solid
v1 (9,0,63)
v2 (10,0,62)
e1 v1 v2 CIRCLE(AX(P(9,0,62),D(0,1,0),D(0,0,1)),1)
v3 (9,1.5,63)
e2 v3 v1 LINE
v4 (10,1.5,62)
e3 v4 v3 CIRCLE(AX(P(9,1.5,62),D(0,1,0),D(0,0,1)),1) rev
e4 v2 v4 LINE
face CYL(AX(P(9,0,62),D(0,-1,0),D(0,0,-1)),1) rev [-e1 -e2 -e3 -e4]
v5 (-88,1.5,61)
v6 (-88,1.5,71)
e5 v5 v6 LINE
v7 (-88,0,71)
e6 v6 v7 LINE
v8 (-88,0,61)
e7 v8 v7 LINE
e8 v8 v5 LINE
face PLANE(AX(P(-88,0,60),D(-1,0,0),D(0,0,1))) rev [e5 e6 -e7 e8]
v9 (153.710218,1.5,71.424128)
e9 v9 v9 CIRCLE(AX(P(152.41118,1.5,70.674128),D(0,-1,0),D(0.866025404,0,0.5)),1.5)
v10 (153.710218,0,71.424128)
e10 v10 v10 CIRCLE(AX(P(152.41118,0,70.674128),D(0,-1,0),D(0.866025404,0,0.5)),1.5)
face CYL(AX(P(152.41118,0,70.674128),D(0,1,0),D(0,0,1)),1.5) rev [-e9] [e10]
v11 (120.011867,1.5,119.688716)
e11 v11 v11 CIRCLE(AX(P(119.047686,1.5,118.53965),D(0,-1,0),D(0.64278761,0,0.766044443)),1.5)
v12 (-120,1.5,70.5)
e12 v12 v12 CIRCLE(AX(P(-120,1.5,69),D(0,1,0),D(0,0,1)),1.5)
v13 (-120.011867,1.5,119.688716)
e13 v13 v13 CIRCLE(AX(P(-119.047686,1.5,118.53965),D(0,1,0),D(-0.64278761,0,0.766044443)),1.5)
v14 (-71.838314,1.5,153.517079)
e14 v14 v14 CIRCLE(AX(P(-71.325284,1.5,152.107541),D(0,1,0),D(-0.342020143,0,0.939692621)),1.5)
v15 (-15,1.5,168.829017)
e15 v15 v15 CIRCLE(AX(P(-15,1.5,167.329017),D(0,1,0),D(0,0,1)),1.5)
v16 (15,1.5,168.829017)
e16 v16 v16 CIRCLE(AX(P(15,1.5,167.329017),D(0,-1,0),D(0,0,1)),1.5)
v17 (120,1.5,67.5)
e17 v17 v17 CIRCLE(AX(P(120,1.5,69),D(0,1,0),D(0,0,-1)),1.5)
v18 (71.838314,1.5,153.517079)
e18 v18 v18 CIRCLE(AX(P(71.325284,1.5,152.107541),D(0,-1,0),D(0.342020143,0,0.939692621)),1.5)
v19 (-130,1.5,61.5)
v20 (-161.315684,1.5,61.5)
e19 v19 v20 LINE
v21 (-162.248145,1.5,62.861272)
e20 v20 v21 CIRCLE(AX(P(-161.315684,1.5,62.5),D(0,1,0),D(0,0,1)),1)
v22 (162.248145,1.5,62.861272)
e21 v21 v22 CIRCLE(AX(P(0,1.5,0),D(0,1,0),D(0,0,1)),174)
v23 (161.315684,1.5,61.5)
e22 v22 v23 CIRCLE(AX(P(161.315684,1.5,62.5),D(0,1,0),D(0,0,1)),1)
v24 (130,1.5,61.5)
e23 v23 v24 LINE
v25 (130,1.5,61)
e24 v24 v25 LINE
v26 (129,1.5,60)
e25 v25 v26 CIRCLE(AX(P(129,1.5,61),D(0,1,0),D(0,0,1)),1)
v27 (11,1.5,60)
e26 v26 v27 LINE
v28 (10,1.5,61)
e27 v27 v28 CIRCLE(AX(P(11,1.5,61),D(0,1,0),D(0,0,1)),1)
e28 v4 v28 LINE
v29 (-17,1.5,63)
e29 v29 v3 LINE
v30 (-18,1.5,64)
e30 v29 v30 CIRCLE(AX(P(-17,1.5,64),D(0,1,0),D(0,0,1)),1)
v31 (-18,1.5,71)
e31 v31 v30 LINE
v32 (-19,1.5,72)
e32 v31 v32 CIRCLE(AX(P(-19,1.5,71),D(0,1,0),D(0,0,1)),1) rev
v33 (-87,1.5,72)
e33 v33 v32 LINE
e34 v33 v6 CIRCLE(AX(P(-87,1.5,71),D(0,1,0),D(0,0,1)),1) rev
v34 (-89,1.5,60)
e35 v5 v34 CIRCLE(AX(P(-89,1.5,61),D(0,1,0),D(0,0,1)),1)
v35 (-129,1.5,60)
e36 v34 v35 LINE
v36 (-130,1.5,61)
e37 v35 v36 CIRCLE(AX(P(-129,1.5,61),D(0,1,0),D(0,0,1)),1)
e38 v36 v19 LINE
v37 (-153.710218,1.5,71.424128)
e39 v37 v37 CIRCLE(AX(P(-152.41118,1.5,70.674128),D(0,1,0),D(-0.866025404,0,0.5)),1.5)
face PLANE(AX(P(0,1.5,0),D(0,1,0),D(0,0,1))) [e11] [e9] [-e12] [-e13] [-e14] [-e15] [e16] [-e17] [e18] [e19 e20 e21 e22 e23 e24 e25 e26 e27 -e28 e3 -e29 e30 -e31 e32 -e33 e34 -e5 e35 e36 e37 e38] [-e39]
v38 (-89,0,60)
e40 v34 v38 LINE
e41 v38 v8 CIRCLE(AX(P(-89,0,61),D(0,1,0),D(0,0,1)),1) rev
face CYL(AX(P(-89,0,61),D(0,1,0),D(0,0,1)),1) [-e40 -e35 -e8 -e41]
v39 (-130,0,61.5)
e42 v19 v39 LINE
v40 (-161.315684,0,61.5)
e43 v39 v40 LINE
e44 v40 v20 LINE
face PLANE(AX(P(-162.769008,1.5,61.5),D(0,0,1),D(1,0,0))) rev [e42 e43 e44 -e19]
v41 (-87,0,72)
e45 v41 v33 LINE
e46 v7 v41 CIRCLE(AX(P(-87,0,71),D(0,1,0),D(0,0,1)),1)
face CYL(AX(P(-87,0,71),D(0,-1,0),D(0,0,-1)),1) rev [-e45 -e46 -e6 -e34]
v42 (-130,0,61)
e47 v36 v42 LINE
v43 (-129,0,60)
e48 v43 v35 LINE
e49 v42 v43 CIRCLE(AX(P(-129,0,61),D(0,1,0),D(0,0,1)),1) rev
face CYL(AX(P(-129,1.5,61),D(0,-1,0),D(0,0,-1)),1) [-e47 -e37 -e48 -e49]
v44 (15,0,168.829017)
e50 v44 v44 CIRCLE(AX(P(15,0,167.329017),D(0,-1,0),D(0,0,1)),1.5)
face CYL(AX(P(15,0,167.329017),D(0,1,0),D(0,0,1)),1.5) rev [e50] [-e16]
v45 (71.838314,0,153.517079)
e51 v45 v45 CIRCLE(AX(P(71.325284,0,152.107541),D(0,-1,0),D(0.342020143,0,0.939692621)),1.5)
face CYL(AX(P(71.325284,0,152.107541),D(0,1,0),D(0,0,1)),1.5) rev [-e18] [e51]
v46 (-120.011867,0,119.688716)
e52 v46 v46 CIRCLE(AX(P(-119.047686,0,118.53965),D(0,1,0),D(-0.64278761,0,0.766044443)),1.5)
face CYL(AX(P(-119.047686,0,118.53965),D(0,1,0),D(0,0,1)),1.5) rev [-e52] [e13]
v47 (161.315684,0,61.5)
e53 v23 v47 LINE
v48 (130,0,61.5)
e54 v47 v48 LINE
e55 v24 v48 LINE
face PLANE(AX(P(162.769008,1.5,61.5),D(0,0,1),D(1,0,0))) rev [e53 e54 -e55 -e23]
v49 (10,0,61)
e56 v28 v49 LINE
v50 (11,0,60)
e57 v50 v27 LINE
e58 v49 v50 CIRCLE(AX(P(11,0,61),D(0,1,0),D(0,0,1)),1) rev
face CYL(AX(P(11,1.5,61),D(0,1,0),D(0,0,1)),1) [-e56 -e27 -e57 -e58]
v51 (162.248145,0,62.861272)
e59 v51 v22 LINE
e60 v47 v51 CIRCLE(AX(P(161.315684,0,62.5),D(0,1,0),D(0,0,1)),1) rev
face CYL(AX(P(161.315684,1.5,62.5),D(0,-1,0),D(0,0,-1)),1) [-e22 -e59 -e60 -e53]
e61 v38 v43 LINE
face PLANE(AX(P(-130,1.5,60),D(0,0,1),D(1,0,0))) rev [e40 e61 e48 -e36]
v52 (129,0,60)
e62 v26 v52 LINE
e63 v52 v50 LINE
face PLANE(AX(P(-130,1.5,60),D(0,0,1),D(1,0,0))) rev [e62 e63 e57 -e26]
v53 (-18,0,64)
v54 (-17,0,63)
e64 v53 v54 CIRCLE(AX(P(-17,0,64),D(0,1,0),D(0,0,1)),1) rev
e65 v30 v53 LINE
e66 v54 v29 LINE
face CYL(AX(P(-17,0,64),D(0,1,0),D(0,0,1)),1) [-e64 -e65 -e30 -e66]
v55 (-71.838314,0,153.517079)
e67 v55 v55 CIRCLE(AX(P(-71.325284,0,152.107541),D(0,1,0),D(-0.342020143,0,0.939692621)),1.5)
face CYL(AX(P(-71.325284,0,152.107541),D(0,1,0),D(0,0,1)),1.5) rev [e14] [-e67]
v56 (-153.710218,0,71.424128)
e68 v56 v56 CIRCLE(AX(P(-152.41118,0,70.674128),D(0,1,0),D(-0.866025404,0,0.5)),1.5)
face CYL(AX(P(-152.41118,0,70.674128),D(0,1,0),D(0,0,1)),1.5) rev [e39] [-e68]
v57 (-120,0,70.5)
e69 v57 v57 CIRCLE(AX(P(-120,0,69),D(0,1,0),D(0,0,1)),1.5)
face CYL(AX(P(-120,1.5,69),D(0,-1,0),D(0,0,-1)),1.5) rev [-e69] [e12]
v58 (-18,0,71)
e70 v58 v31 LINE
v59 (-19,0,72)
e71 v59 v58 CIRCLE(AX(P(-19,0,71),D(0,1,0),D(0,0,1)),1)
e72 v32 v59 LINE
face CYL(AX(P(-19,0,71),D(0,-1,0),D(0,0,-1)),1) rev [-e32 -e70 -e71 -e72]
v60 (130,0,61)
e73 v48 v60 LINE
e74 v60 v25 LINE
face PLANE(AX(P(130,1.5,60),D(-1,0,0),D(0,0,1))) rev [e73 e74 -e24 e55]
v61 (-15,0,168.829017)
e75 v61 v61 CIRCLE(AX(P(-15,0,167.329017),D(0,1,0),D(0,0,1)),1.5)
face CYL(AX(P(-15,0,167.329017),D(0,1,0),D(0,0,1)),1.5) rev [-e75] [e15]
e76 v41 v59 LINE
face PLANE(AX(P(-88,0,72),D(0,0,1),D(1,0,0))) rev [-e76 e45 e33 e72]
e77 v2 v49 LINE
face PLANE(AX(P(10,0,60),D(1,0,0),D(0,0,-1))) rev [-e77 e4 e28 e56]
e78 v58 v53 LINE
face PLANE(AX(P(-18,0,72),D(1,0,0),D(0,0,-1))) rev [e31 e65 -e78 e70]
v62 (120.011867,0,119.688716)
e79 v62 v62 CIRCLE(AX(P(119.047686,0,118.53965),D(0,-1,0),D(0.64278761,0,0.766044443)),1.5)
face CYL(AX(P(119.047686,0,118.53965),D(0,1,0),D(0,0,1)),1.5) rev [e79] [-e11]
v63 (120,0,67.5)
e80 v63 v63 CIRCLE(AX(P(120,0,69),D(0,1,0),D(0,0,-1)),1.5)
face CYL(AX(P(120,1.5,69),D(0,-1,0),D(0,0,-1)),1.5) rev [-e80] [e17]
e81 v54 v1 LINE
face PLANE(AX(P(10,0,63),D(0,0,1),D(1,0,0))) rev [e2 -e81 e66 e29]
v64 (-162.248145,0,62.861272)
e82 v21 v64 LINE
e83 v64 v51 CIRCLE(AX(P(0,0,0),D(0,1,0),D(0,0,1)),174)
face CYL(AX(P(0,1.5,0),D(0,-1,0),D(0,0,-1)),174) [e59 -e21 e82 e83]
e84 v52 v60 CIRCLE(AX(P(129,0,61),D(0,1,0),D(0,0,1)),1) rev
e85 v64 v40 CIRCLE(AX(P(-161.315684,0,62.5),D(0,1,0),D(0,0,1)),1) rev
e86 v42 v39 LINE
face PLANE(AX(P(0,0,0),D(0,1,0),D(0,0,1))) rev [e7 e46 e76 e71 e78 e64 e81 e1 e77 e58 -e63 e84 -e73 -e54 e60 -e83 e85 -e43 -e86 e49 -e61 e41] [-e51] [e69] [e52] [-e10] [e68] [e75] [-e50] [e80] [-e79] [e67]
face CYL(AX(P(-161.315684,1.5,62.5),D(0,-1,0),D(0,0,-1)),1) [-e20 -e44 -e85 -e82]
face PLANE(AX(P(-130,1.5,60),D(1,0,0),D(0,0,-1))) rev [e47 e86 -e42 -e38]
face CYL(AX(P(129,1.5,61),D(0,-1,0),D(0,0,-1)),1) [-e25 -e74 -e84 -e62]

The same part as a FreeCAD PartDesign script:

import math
import FreeCAD as App
import Part
import Sketcher

V = App.Vector
Q = App.Units.Quantity


def edges_at(feature, points):
    """Names of the edges that pass closest to the given points."""
    edges = feature.Shape.Edges
    near = lambda p: min(range(len(edges)), key=lambda i: edges[i].distToShape(Part.Vertex(*p))[0])
    return sorted({f"Edge{near(p) + 1}" for p in points})


def add_polygon(sketch, points):
    """Adds a closed chain of lines whose ends are joined by coincident constraints."""
    first, n = sketch.GeometryCount, len(points)
    for a, b in zip(points, points[1:] + points[:1]):
        sketch.addGeometry(Part.LineSegment(App.Vector(*a, 0), App.Vector(*b, 0)), False)
    for i in range(n):
        sketch.addConstraint(Sketcher.Constraint("Coincident", first + i, 2, first + (i + 1) % n, 1))

doc = App.newDocument("Part")
body = doc.addObject("PartDesign::Body", "Body")

sketch1 = body.newObject("Sketcher::SketchObject", "Sketch")
sketch1.AttachmentSupport = (doc.getObject("XZ_Plane"), [""])
sketch1.MapMode = "FlatFace"
sketch1.addGeometry([
    Part.LineSegment(V(130, 60, 0), V(-130, 60, 0)),
    Part.LineSegment(V(-130, 60, 0), V(-130, 61.5, 0)),
    Part.LineSegment(V(-130, 61.5, 0), V(-162.8, 61.5, 0)),
    Part.ArcOfCircle(Part.Circle(V(0, 0, 0), V(0, 0, 1), 174), math.radians(90), math.radians(159)),
    Part.ArcOfCircle(Part.Circle(V(0, 0, 0), V(0, 0, 1), 174), math.radians(21), math.radians(90)),
    Part.LineSegment(V(162.8, 61.5, 0), V(130, 61.5, 0)),
    Part.LineSegment(V(130, 61.5, 0), V(130, 60, 0)),
    Part.Circle(V(120, 69, 0), V(0, 0, 1), 1.5),
    Part.Circle(V(-120, 69, 0), V(0, 0, 1), 1.5),
], False)
sketch1.addConstraint([
    Sketcher.Constraint("Coincident", 0, 2, 1, 1),
    Sketcher.Constraint("Coincident", 1, 2, 2, 1),
    Sketcher.Constraint("Coincident", 2, 2, 3, 2),
    Sketcher.Constraint("Tangent", 3, 1, 4, 2),
    Sketcher.Constraint("Coincident", 4, 1, 5, 1),
    Sketcher.Constraint("Coincident", 5, 2, 6, 1),
    Sketcher.Constraint("Coincident", 6, 2, 0, 1),
    Sketcher.Constraint("Horizontal", 0),
    Sketcher.Constraint("Vertical", 1),
    Sketcher.Constraint("Horizontal", 2),
    Sketcher.Constraint("Horizontal", 5),
    Sketcher.Constraint("Vertical", 6),
    Sketcher.Constraint("Coincident", 3, 3, -1, 1),
    Sketcher.Constraint("Equal", 3, 4),
    Sketcher.Constraint("Equal", 7, 8),
    Sketcher.Constraint("Symmetric", 7, 3, 8, 3, -2),
    Sketcher.Constraint("Symmetric", 1, 2, 5, 2, -2),
    Sketcher.Constraint("PointOnObject", 3, 1, -2),
    Sketcher.Constraint("Diameter", 7, Q("3 mm")),
    Sketcher.Constraint("Radius", 3, Q("174 mm")),
    Sketcher.Constraint("DistanceX", 0, 2, 0, 1, Q("260 mm")),
    Sketcher.Constraint("DistanceY", 1, 1, 1, 2, Q("1.5 mm")),
    Sketcher.Constraint("DistanceX", -1, 1, 7, 3, Q("120 mm")),
    Sketcher.Constraint("DistanceY", -1, 1, 7, 3, Q("69 mm")),
    Sketcher.Constraint("DistanceY", -1, 1, 0, 2, Q("60 mm")),
])
pad1 = body.newObject("PartDesign::Pad", "Pad")
pad1.Profile = sketch1
pad1.Length = 1.5
pad1.Reversed = True
doc.recompute()

fillet = body.newObject("PartDesign::Fillet", "Fillet")
fillet.Base = (pad1, edges_at(pad1, [
    (-130, 0.75, 60),
    (130, 0.75, 60),
    (162.769, 0.75, 61.5),
    (-162.769, 0.75, 61.5),
]))
fillet.Radius = 1

sketch2 = body.newObject("Sketcher::SketchObject", "Sketch001")
sketch2.AttachmentSupport = (doc.getObject("XZ_Plane"), [""])
sketch2.MapMode = "FlatFace"
sketch2.AttachmentOffset = App.Placement(V(0, 0, -1.5), App.Rotation())
sketch2.addGeometry(Part.Circle(V(-15, 167.3, 0), V(0, 0, 1), 1.5), False)
sketch2.addConstraint([
    Sketcher.Constraint("Diameter", 0, Q("3 mm")),
    Sketcher.Constraint("DistanceX", 0, 3, -1, 1, Q("15 mm")),
    Sketcher.Constraint("DistanceY", -1, 1, 0, 3, Q("167.329017 mm")),
])
pocket1 = body.newObject("PartDesign::Pocket", "Pocket")
pocket1.Profile = sketch2
pocket1.Type = "ThroughAll"
pocket1.Reversed = True
doc.recompute()

polarpattern = body.newObject("PartDesign::PolarPattern", "PolarPattern")
polarpattern.Originals = [pocket1]
polarpattern.Axis = (doc.getObject("Y_Axis"), [""])
polarpattern.Angle = 60
polarpattern.Occurrences = 4
polarpattern.Reversed = True
body.Tip = polarpattern
doc.recompute()

mirrored = body.newObject("PartDesign::Mirrored", "Mirrored")
mirrored.Originals = [pocket1]
mirrored.MirrorPlane = (doc.getObject("YZ_Plane"), [""])
body.Tip = mirrored

sketch3 = body.newObject("Sketcher::SketchObject", "Sketch002")
sketch3.AttachmentSupport = (doc.getObject("XZ_Plane"), [""])
sketch3.MapMode = "FlatFace"
sketch3.AttachmentOffset = App.Placement(V(0, 0, -1.5), App.Rotation())
sketch3.addGeometry(Part.Circle(V(71.3, 152.1, 0), V(0, 0, 1), 1.5), False)
sketch3.addConstraint([
    Sketcher.Constraint("Diameter", 0, Q("3 mm")),
    Sketcher.Constraint("DistanceY", -1, 1, 0, 3, Q("152.107541 mm")),
    Sketcher.Constraint("DistanceX", -1, 1, 0, 3, Q("71.325284 mm")),
])
pocket2 = body.newObject("PartDesign::Pocket", "Pocket001")
pocket2.Profile = sketch3
pocket2.Type = "ThroughAll"
pocket2.Reversed = True

sketch4 = body.newObject("Sketcher::SketchObject", "Sketch003")
sketch4.AttachmentSupport = (doc.getObject("XZ_Plane"), [""])
sketch4.MapMode = "FlatFace"
sketch4.AttachmentOffset = App.Placement(V(0, 0, -1.5), App.Rotation())
sketch4.addGeometry(Part.Circle(V(119, 118.5, 0), V(0, 0, 1), 1.5), False)
sketch4.addConstraint([
    Sketcher.Constraint("Diameter", 0, Q("3 mm")),
    Sketcher.Constraint("DistanceY", -1, 1, 0, 3, Q("118.53965 mm")),
    Sketcher.Constraint("DistanceX", -1, 1, 0, 3, Q("119.047686 mm")),
])
pocket3 = body.newObject("PartDesign::Pocket", "Pocket002")
pocket3.Profile = sketch4
pocket3.Type = "ThroughAll"
pocket3.Reversed = True

sketch5 = body.newObject("Sketcher::SketchObject", "Sketch004")
sketch5.AttachmentSupport = (doc.getObject("XZ_Plane"), [""])
sketch5.MapMode = "FlatFace"
sketch5.AttachmentOffset = App.Placement(V(0, 0, -1.5), App.Rotation())
sketch5.addGeometry(Part.Circle(V(152.4, 70.7, 0), V(0, 0, 1), 1.5), False)
sketch5.addConstraint([
    Sketcher.Constraint("Diameter", 0, Q("3 mm")),
    Sketcher.Constraint("DistanceX", -1, 1, 0, 3, Q("152.41118 mm")),
    Sketcher.Constraint("DistanceY", -1, 1, 0, 3, Q("70.674128 mm")),
])
pocket4 = body.newObject("PartDesign::Pocket", "Pocket003")
pocket4.Profile = sketch5
pocket4.Type = "ThroughAll"
pocket4.Reversed = True

sketch6 = body.newObject("Sketcher::SketchObject", "Sketch005")
sketch6.AttachmentSupport = (doc.getObject("XZ_Plane"), [""])
sketch6.MapMode = "FlatFace"
sketch6.AttachmentOffset = App.Placement(V(0, 0, -1.5), App.Rotation())
add_polygon(sketch6, [(10, 60), (-88, 60), (-88, 72), (-18, 72), (-18, 63), (10, 63)])
sketch6.addConstraint([
    Sketcher.Constraint("Horizontal", 0),
    Sketcher.Constraint("Vertical", 1),
    Sketcher.Constraint("Horizontal", 2),
    Sketcher.Constraint("Vertical", 3),
    Sketcher.Constraint("Horizontal", 4),
    Sketcher.Constraint("Vertical", 5),
    Sketcher.Constraint("DistanceX", 0, 2, 0, 1, Q("98 mm")),
    Sketcher.Constraint("DistanceX", 2, 1, 2, 2, Q("70 mm")),
    Sketcher.Constraint("DistanceY", 1, 1, 1, 2, Q("12 mm")),
    Sketcher.Constraint("DistanceY", 3, 2, 3, 1, Q("9 mm")),
    Sketcher.Constraint("DistanceX", 0, 2, -1, 1, Q("88 mm")),
    Sketcher.Constraint("DistanceY", -1, 1, 0, 2, Q("60 mm")),
])
pocket5 = body.newObject("PartDesign::Pocket", "Pocket004")
pocket5.Profile = sketch6
pocket5.Type = "ThroughAll"
pocket5.Reversed = True
doc.recompute()

fillet2 = body.newObject("PartDesign::Fillet", "Fillet001")
fillet2.Base = (pocket5, edges_at(pocket5, [
    (-18, 0.75, 72),
    (-88, 0.75, 72),
    (-88, 0.75, 60),
    (10, 0.75, 60),
    (10, 0.75, 63),
    (-18, 0.75, 63),
]))
fillet2.Radius = 1

doc.recompute()
